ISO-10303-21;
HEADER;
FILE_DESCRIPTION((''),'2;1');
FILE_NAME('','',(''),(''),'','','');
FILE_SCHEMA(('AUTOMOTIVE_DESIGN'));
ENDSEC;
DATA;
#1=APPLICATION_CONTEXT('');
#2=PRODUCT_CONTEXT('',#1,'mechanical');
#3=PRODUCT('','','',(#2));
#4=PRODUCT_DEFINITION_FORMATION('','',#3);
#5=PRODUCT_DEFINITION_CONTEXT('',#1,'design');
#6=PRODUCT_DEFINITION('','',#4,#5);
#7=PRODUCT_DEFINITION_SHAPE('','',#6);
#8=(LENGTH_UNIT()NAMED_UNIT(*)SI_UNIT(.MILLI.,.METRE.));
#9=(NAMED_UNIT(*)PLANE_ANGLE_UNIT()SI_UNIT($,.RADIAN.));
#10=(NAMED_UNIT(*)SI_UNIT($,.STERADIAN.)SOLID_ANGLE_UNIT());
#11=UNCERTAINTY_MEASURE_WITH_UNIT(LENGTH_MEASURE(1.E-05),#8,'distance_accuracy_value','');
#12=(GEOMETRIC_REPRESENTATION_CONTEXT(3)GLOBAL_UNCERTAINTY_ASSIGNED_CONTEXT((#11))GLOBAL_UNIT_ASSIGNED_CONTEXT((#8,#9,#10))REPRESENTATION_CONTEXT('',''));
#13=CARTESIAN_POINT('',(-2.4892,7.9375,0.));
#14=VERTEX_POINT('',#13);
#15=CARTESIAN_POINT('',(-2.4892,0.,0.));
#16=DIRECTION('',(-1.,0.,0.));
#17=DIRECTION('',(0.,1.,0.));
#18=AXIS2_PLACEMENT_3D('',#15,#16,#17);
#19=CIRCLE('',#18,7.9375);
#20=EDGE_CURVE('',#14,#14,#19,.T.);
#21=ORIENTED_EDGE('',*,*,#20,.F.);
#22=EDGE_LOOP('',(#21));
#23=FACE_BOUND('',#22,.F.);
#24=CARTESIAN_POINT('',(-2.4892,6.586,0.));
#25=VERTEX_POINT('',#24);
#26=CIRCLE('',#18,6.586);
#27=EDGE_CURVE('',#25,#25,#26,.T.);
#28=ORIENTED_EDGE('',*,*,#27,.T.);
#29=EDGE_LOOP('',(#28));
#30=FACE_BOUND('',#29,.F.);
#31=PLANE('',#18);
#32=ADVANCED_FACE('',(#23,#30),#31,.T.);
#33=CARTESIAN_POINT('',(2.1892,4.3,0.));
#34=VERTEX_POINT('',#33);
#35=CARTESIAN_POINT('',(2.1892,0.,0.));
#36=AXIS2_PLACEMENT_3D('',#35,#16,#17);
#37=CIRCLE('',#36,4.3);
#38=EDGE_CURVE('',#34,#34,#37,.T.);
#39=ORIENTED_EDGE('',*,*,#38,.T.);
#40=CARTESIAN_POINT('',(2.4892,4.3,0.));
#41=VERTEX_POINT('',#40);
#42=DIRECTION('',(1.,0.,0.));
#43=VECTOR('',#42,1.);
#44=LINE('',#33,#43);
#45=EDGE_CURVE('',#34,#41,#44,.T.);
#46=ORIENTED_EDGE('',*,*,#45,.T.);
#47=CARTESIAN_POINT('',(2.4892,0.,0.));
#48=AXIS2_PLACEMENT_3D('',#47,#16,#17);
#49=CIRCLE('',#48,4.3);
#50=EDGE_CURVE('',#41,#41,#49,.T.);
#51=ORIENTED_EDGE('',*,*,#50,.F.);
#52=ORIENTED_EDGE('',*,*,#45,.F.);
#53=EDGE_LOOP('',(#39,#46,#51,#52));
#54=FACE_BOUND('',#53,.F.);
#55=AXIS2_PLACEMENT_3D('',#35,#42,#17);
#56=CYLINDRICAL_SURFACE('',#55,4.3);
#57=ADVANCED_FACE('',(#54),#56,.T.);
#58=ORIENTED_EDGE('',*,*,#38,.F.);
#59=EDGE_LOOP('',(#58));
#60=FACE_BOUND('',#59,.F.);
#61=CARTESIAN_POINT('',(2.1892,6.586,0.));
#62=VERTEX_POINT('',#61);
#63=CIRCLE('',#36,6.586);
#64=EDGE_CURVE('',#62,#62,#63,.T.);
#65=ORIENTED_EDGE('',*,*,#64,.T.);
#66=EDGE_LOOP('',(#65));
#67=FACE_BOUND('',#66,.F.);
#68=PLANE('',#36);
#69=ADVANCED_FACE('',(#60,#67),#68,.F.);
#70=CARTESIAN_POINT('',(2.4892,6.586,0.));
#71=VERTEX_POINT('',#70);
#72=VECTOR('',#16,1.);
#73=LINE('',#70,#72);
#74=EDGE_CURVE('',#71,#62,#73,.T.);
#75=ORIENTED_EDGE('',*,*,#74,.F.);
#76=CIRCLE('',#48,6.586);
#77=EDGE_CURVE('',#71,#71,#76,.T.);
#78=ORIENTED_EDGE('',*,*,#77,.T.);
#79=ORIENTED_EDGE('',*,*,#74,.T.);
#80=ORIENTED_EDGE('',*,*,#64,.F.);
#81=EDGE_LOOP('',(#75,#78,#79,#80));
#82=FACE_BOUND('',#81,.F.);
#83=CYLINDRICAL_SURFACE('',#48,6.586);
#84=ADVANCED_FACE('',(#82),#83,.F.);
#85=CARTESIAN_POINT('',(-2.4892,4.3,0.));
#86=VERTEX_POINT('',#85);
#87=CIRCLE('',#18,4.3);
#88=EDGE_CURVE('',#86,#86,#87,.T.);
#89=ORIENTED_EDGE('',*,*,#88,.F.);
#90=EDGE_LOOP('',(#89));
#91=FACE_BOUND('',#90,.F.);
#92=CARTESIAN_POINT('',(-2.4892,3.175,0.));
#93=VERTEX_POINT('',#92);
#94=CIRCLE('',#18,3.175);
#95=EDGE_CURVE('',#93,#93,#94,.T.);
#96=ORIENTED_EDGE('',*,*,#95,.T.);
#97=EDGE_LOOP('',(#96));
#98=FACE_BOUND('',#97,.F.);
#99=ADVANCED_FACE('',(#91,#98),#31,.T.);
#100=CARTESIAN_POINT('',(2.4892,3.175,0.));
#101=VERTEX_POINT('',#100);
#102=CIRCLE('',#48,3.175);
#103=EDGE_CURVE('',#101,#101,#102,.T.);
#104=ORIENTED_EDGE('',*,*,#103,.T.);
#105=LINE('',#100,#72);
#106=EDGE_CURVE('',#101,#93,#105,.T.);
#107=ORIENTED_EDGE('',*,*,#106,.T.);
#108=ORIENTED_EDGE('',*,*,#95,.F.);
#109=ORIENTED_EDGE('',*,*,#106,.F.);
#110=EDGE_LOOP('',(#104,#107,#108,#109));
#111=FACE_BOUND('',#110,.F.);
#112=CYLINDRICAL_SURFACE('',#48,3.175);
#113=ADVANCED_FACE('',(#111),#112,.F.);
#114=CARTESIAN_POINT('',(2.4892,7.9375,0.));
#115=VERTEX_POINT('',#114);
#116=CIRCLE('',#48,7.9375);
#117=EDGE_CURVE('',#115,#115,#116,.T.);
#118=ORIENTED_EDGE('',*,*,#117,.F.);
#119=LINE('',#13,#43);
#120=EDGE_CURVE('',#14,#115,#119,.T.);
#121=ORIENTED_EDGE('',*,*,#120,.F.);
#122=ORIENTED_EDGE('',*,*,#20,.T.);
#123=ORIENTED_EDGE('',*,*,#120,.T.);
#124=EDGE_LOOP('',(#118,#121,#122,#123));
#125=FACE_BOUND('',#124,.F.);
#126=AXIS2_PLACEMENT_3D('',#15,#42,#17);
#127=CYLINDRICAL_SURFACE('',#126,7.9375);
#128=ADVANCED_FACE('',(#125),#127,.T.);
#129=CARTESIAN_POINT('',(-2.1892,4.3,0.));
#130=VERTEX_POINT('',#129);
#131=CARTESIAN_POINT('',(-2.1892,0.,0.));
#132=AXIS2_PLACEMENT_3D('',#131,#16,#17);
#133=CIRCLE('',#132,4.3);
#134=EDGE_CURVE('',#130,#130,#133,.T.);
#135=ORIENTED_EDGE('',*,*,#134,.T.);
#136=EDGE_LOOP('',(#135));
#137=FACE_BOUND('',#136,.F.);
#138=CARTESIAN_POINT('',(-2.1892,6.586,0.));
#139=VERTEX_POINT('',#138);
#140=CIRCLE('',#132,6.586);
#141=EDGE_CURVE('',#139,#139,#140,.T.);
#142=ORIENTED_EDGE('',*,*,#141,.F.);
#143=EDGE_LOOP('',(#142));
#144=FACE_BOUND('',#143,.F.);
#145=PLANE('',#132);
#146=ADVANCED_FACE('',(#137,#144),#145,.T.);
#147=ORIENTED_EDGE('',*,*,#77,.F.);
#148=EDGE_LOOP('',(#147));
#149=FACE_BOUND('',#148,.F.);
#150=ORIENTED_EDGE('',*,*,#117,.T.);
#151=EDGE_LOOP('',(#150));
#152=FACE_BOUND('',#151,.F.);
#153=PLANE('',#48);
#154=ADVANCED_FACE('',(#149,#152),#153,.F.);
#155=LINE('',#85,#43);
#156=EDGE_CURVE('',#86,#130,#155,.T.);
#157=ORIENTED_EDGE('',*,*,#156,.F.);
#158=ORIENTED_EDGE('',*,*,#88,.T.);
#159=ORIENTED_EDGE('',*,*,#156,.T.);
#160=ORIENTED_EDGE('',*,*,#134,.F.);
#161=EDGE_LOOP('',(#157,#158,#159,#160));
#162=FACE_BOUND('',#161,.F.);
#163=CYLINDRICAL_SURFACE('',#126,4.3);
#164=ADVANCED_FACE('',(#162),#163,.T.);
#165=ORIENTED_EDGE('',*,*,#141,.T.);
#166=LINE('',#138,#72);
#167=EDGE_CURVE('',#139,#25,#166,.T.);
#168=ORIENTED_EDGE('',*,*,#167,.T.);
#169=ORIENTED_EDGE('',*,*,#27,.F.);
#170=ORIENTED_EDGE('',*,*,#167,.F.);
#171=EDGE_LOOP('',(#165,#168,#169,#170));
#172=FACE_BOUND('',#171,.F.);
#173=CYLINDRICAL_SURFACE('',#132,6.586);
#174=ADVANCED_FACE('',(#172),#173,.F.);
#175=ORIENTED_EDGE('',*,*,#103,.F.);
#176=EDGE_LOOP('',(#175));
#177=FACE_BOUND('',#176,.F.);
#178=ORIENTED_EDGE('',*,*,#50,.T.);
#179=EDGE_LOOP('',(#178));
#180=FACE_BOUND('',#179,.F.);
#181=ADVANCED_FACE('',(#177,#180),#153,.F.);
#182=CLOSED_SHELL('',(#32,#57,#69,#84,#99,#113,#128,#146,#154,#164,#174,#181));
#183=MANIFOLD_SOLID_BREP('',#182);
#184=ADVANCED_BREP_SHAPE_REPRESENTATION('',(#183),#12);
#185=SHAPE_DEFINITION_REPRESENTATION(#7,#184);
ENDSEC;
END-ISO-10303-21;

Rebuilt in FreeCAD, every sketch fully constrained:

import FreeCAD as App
import Part
import Sketcher
Q = App.Units.Quantity

doc = App.newDocument("Part")
body = doc.addObject("PartDesign::Body", "Body")

# Sketch on XY plane
sketch1 = body.newObject("Sketcher::SketchObject", "Sketch")
sketch1.AttachmentSupport = (doc.getObject("XY_Plane"), [""])
sketch1.MapMode = "FlatFace"
sketch1.addGeometry(Part.LineSegment(App.Vector(-2.49, 3.17, 0), App.Vector(2.49, 3.17, 0)), False)
sketch1.addGeometry(Part.LineSegment(App.Vector(2.49, 3.17, 0), App.Vector(2.49, 4.3, 0)), False)
sketch1.addGeometry(Part.LineSegment(App.Vector(2.49, 4.3, 0), App.Vector(2.19, 4.3, 0)), False)
sketch1.addGeometry(Part.LineSegment(App.Vector(2.19, 4.3, 0), App.Vector(2.19, 6.59, 0)), False)
sketch1.addGeometry(Part.LineSegment(App.Vector(2.19, 6.59, 0), App.Vector(2.49, 6.59, 0)), False)
sketch1.addGeometry(Part.LineSegment(App.Vector(2.49, 6.59, 0), App.Vector(2.49, 7.94, 0)), False)
sketch1.addGeometry(Part.LineSegment(App.Vector(2.49, 7.94, 0), App.Vector(-2.49, 7.94, 0)), False)
sketch1.addGeometry(Part.LineSegment(App.Vector(-2.49, 7.94, 0), App.Vector(-2.49, 6.59, 0)), False)
sketch1.addGeometry(Part.LineSegment(App.Vector(-2.49, 6.59, 0), App.Vector(-2.19, 6.59, 0)), False)
sketch1.addGeometry(Part.LineSegment(App.Vector(-2.19, 6.59, 0), App.Vector(-2.19, 4.3, 0)), False)
sketch1.addGeometry(Part.LineSegment(App.Vector(-2.19, 4.3, 0), App.Vector(-2.49, 4.3, 0)), False)
sketch1.addGeometry(Part.LineSegment(App.Vector(-2.49, 4.3, 0), App.Vector(-2.49, 3.17, 0)), False)
sketch1.addConstraint(Sketcher.Constraint("Coincident", 0, 2, 1, 1))
sketch1.addConstraint(Sketcher.Constraint("Coincident", 1, 2, 2, 1))
sketch1.addConstraint(Sketcher.Constraint("Coincident", 2, 2, 3, 1))
sketch1.addConstraint(Sketcher.Constraint("Coincident", 3, 2, 4, 1))
sketch1.addConstraint(Sketcher.Constraint("Coincident", 4, 2, 5, 1))
sketch1.addConstraint(Sketcher.Constraint("Coincident", 5, 2, 6, 1))
sketch1.addConstraint(Sketcher.Constraint("Coincident", 6, 2, 7, 1))
sketch1.addConstraint(Sketcher.Constraint("Coincident", 7, 2, 8, 1))
sketch1.addConstraint(Sketcher.Constraint("Coincident", 8, 2, 9, 1))
sketch1.addConstraint(Sketcher.Constraint("Coincident", 9, 2, 10, 1))
sketch1.addConstraint(Sketcher.Constraint("Coincident", 10, 2, 11, 1))
sketch1.addConstraint(Sketcher.Constraint("Coincident", 11, 2, 0, 1))
sketch1.addConstraint(Sketcher.Constraint("Horizontal", 0))
sketch1.addConstraint(Sketcher.Constraint("Vertical", 1))
sketch1.addConstraint(Sketcher.Constraint("Horizontal", 2))
sketch1.addConstraint(Sketcher.Constraint("Vertical", 3))
sketch1.addConstraint(Sketcher.Constraint("Horizontal", 4))
sketch1.addConstraint(Sketcher.Constraint("Vertical", 5))
sketch1.addConstraint(Sketcher.Constraint("Horizontal", 6))
sketch1.addConstraint(Sketcher.Constraint("Vertical", 7))
sketch1.addConstraint(Sketcher.Constraint("Horizontal", 8))
sketch1.addConstraint(Sketcher.Constraint("Vertical", 9))
sketch1.addConstraint(Sketcher.Constraint("Horizontal", 10))
sketch1.addConstraint(Sketcher.Constraint("Vertical", 11))
sketch1.addConstraint(Sketcher.Constraint("Symmetric", 4, 2, 7, 2, -2))
sketch1.addConstraint(Sketcher.Constraint("Symmetric", 2, 2, 9, 2, -2))
sketch1.addConstraint(Sketcher.Constraint("Vertical", 1, 2, 4, 2))
sketch1.addConstraint(Sketcher.Constraint("Vertical", 7, 2, 10, 2))
sketch1.addConstraint(Sketcher.Constraint("DistanceY", 3, 1, 3, 2, Q("0.09 in")))
sketch1.addConstraint(Sketcher.Constraint("DistanceX", 0, 1, 0, 2, Q("0.196 in")))
sketch1.addConstraint(Sketcher.Constraint("DistanceY", -1, 1, 0, 2, Q("0.125 in")))
sketch1.addConstraint(Sketcher.Constraint("DistanceY", -1, 1, 5, 2, Q("0.3125 in")))
sketch1.addConstraint(Sketcher.Constraint("DistanceX", 2, 2, 2, 1, 0.3))
sketch1.addConstraint(Sketcher.Constraint("DistanceY", 1, 1, 1, 2, 1.125))
revolution = body.newObject("PartDesign::Revolution", "Revolution")
revolution.Profile = sketch1
revolution.ReferenceAxis = (sketch1, ["H_Axis"])
revolution.Angle = 360

doc.recompute()
